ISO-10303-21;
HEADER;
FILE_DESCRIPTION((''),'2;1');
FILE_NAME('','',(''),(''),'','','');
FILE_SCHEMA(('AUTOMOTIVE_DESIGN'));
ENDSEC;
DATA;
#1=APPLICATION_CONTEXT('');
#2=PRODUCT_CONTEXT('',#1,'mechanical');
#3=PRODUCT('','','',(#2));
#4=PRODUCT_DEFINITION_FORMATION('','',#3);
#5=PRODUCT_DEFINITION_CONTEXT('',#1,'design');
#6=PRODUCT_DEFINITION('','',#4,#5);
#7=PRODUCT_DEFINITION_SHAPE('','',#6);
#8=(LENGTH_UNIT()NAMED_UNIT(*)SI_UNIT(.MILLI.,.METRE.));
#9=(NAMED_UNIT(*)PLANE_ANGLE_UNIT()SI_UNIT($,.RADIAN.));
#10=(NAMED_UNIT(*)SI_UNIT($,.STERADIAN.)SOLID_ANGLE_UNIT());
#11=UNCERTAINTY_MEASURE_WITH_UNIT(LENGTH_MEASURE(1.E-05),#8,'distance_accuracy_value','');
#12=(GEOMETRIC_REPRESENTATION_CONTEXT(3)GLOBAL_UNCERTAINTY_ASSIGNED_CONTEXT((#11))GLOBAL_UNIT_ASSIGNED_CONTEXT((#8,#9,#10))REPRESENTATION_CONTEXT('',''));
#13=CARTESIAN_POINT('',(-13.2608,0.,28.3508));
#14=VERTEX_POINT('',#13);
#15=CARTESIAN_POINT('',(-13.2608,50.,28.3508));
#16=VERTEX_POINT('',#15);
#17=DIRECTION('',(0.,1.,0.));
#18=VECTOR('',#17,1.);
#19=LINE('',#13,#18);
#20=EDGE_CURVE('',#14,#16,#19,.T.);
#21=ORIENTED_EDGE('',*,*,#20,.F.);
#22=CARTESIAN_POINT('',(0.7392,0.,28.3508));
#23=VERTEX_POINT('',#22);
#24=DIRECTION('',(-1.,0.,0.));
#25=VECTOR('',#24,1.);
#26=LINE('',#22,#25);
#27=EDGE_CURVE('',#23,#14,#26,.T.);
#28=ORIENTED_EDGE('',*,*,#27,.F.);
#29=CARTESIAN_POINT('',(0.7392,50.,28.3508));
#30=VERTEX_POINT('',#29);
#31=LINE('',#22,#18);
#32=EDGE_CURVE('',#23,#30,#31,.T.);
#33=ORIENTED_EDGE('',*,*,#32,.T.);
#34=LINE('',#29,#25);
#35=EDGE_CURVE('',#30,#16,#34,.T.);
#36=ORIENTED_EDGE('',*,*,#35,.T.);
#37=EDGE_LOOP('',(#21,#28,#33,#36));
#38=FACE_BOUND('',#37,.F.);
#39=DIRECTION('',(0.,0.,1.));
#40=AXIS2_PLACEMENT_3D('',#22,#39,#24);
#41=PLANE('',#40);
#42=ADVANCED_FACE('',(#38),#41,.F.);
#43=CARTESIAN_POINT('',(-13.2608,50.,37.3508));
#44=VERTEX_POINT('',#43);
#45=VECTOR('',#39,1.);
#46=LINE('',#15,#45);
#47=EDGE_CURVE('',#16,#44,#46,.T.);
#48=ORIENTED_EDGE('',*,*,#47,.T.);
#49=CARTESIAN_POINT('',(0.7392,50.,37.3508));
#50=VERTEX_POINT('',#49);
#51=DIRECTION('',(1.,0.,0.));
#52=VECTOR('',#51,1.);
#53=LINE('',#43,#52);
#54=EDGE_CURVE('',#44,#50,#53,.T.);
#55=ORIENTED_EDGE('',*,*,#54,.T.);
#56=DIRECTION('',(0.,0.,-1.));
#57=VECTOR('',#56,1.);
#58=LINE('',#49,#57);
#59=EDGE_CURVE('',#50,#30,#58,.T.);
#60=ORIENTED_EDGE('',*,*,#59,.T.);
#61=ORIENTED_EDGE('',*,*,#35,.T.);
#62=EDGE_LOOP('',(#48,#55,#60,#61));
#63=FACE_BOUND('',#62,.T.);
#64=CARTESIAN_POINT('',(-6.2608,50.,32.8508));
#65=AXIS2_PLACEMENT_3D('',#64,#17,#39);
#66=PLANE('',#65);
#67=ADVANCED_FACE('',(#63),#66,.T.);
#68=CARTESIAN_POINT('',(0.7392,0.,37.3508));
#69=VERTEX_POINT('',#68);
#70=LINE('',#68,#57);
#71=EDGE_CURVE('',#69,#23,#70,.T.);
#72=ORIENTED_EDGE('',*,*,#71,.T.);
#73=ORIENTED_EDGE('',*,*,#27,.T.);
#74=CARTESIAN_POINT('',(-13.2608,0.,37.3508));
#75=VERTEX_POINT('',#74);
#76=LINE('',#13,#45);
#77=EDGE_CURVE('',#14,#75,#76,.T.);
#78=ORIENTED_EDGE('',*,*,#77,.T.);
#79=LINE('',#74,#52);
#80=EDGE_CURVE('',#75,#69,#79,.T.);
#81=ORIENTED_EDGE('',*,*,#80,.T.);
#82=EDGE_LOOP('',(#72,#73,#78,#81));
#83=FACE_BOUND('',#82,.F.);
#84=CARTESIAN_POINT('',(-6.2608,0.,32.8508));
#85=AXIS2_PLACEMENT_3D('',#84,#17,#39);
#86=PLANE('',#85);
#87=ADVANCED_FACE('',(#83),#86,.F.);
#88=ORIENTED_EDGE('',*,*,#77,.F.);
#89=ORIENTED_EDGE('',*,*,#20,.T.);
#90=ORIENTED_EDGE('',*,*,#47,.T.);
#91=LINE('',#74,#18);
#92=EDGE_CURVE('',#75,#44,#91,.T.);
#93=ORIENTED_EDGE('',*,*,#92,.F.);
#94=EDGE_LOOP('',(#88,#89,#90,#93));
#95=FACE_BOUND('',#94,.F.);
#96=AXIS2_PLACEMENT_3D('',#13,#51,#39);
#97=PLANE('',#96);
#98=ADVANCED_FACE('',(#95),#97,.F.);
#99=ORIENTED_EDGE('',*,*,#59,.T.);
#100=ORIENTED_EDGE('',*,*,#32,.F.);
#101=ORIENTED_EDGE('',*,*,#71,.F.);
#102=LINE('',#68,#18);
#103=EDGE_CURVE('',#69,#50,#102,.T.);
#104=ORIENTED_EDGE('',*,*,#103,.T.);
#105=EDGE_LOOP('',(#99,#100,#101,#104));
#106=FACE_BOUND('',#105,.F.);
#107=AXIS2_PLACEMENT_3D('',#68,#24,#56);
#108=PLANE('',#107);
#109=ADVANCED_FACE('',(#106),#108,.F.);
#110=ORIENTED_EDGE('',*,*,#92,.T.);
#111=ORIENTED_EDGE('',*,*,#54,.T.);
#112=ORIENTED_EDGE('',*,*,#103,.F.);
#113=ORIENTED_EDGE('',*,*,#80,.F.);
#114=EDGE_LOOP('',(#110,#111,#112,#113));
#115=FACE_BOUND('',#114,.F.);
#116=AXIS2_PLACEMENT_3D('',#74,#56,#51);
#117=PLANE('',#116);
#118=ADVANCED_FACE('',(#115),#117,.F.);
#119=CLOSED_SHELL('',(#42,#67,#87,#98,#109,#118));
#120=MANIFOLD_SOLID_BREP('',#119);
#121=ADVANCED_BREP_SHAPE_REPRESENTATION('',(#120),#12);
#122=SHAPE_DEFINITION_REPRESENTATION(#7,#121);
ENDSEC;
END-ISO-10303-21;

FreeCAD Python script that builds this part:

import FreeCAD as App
import Part
import Sketcher
Q = App.Units.Quantity


def add_polygon(sketch, points):
    """Adds a closed chain of lines whose ends are joined by coincident constraints."""
    first, n = sketch.GeometryCount, len(points)
    for a, b in zip(points, points[1:] + points[:1]):
        sketch.addGeometry(Part.LineSegment(App.Vector(*a, 0), App.Vector(*b, 0)), False)
    for i in range(n):
        sketch.addConstraint(Sketcher.Constraint("Coincident", first + i, 2, first + (i + 1) % n, 1))

doc = App.newDocument("Part")
body = doc.addObject("PartDesign::Body", "Body")

# Sketch on XZ plane
sketch1 = body.newObject("Sketcher::SketchObject", "Sketch")
sketch1.AttachmentSupport = (doc.getObject("XZ_Plane"), [""])
sketch1.MapMode = "FlatFace"
add_polygon(sketch1, [(-13, 28), (1, 28), (1, 37), (-13, 37)])  # lines 0-3
sketch1.addConstraint(Sketcher.Constraint("Horizontal", 0))
sketch1.addConstraint(Sketcher.Constraint("Vertical", 1))
sketch1.addConstraint(Sketcher.Constraint("Horizontal", 2))
sketch1.addConstraint(Sketcher.Constraint("Vertical", 3))
sketch1.addConstraint(Sketcher.Constraint("DistanceX", 0, 1, 0, 2, Q("14 mm")))
sketch1.addConstraint(Sketcher.Constraint("DistanceY", 1, 1, 1, 2, Q("9 mm")))
sketch1.addConstraint(Sketcher.Constraint("DistanceX", -1, 1, 0, 2, Q("0.7392 mm")))
sketch1.addConstraint(Sketcher.Constraint("DistanceY", -1, 1, 0, 2, Q("28.3508 mm")))
pad1 = body.newObject("PartDesign::Pad", "Pad")
pad1.Profile = sketch1
pad1.Length = 50
pad1.Reversed = True

doc.recompute()
